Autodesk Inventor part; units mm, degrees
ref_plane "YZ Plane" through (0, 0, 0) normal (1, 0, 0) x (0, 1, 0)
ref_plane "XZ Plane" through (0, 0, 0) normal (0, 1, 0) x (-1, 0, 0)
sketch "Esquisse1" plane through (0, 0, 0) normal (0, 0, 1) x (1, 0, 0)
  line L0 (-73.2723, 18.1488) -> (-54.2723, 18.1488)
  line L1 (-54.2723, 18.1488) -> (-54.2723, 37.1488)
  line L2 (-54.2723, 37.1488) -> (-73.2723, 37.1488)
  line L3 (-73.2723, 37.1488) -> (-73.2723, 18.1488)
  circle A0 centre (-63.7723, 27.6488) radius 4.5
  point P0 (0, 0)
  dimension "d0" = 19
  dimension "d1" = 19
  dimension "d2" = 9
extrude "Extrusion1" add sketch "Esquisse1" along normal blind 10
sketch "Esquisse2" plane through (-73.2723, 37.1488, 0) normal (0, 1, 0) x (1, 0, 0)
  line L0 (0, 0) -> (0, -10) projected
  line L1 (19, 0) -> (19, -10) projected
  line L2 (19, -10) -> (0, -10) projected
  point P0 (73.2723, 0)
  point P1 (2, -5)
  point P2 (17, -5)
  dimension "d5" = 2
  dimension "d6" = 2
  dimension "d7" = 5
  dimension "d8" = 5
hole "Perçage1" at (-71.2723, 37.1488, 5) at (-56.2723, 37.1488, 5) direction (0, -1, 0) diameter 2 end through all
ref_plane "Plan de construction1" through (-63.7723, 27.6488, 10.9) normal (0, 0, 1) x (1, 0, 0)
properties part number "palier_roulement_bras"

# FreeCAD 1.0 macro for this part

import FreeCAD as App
import Part
import Sketcher
from FreeCAD import Vector


def add_polygon(sketch, points):
    """Adds a closed chain of lines whose ends are joined by coincident constraints."""
    first, n = sketch.GeometryCount, len(points)
    for a, b in zip(points, points[1:] + points[:1]):
        sketch.addGeometry(Part.LineSegment(App.Vector(*a, 0), App.Vector(*b, 0)), False)
    for i in range(n):
        sketch.addConstraint(Sketcher.Constraint("Coincident", first + i, 2, first + (i + 1) % n, 1))

doc = App.newDocument("Part")
body = doc.addObject("PartDesign::Body", "Body")

# Sketch on XY plane
sketch1 = doc.addObject("Sketcher::SketchObject", "Sketch")
body.addObject(sketch1)
sketch1.AttachmentSupport = (doc.XY_Plane, [""])
sketch1.MapMode = "FlatFace"
add_polygon(sketch1, [(-73.2723, 37.1488), (-73.2723, 18.1488), (-54.2723, 18.1488), (-54.2723, 37.1488)])  # lines 0-3
sketch1.addGeometry(Part.Circle(Vector(-63.7723, 27.6488, 0), Vector(0, 0, 1), 4.5), False)  # 4
sketch1.addConstraint(Sketcher.Constraint("Vertical", 0))
sketch1.addConstraint(Sketcher.Constraint("Horizontal", 1))
sketch1.addConstraint(Sketcher.Constraint("Vertical", 2))
sketch1.addConstraint(Sketcher.Constraint("Horizontal", 3))
sketch1.addConstraint(Sketcher.Constraint("Equal", 3, 0))
sketch1.addConstraint(Sketcher.Constraint("Diameter", 4, 9.0))
sketch1.addConstraint(Sketcher.Constraint("DistanceX", 1, 1, 1, 2, 19.0))
sketch1.addConstraint(Sketcher.Constraint("DistanceX", 0, 2, 4, 3, 9.5))
sketch1.addConstraint(Sketcher.Constraint("DistanceY", 0, 2, 4, 3, 9.5))
sketch1.addConstraint(Sketcher.Constraint("DistanceX", 4, 3, -1, 1, 63.7723))
sketch1.addConstraint(Sketcher.Constraint("DistanceY", -1, 1, 4, 3, 27.6488))
pad1 = doc.addObject("PartDesign::Pad", "Pad")
body.addObject(pad1)
pad1.Profile = sketch1
pad1.Length = 10

# Sketch on XZ plane
sketch2 = doc.addObject("Sketcher::SketchObject", "Sketch001")
body.addObject(sketch2)
sketch2.AttachmentSupport = (doc.XZ_Plane, [""])
sketch2.MapMode = "FlatFace"
sketch2.AttachmentOffset = App.Placement(Vector(0, 0, -37.1488), App.Rotation())
sketch2.addGeometry(Part.Circle(Vector(-71.2723, 5, 0), Vector(0, 0, 1), 1), False)
sketch2.addGeometry(Part.Circle(Vector(-56.2723, 5, 0), Vector(0, 0, 1), 1), False)
sketch2.addConstraint(Sketcher.Constraint("Equal", 0, 1))
sketch2.addConstraint(Sketcher.Constraint("Horizontal", 0, 3, 1, 3))
sketch2.addConstraint(Sketcher.Constraint("Diameter", 0, 2.0))
sketch2.addConstraint(Sketcher.Constraint("DistanceY", -1, 1, 0, 3, 5.0))
sketch2.addConstraint(Sketcher.Constraint("DistanceX", 0, 3, 1, 3, 15.0))
sketch2.addConstraint(Sketcher.Constraint("DistanceX", 0, 3, -1, 1, 71.2723))
doc.recompute()
hole = doc.addObject("PartDesign::Hole", "Hole")
body.addObject(hole)
hole.Profile = sketch2
hole.ThreadType = "None"
hole.Diameter = 2
hole.DepthType = "ThroughAll"
hole.Reversed = True

doc.recompute()
